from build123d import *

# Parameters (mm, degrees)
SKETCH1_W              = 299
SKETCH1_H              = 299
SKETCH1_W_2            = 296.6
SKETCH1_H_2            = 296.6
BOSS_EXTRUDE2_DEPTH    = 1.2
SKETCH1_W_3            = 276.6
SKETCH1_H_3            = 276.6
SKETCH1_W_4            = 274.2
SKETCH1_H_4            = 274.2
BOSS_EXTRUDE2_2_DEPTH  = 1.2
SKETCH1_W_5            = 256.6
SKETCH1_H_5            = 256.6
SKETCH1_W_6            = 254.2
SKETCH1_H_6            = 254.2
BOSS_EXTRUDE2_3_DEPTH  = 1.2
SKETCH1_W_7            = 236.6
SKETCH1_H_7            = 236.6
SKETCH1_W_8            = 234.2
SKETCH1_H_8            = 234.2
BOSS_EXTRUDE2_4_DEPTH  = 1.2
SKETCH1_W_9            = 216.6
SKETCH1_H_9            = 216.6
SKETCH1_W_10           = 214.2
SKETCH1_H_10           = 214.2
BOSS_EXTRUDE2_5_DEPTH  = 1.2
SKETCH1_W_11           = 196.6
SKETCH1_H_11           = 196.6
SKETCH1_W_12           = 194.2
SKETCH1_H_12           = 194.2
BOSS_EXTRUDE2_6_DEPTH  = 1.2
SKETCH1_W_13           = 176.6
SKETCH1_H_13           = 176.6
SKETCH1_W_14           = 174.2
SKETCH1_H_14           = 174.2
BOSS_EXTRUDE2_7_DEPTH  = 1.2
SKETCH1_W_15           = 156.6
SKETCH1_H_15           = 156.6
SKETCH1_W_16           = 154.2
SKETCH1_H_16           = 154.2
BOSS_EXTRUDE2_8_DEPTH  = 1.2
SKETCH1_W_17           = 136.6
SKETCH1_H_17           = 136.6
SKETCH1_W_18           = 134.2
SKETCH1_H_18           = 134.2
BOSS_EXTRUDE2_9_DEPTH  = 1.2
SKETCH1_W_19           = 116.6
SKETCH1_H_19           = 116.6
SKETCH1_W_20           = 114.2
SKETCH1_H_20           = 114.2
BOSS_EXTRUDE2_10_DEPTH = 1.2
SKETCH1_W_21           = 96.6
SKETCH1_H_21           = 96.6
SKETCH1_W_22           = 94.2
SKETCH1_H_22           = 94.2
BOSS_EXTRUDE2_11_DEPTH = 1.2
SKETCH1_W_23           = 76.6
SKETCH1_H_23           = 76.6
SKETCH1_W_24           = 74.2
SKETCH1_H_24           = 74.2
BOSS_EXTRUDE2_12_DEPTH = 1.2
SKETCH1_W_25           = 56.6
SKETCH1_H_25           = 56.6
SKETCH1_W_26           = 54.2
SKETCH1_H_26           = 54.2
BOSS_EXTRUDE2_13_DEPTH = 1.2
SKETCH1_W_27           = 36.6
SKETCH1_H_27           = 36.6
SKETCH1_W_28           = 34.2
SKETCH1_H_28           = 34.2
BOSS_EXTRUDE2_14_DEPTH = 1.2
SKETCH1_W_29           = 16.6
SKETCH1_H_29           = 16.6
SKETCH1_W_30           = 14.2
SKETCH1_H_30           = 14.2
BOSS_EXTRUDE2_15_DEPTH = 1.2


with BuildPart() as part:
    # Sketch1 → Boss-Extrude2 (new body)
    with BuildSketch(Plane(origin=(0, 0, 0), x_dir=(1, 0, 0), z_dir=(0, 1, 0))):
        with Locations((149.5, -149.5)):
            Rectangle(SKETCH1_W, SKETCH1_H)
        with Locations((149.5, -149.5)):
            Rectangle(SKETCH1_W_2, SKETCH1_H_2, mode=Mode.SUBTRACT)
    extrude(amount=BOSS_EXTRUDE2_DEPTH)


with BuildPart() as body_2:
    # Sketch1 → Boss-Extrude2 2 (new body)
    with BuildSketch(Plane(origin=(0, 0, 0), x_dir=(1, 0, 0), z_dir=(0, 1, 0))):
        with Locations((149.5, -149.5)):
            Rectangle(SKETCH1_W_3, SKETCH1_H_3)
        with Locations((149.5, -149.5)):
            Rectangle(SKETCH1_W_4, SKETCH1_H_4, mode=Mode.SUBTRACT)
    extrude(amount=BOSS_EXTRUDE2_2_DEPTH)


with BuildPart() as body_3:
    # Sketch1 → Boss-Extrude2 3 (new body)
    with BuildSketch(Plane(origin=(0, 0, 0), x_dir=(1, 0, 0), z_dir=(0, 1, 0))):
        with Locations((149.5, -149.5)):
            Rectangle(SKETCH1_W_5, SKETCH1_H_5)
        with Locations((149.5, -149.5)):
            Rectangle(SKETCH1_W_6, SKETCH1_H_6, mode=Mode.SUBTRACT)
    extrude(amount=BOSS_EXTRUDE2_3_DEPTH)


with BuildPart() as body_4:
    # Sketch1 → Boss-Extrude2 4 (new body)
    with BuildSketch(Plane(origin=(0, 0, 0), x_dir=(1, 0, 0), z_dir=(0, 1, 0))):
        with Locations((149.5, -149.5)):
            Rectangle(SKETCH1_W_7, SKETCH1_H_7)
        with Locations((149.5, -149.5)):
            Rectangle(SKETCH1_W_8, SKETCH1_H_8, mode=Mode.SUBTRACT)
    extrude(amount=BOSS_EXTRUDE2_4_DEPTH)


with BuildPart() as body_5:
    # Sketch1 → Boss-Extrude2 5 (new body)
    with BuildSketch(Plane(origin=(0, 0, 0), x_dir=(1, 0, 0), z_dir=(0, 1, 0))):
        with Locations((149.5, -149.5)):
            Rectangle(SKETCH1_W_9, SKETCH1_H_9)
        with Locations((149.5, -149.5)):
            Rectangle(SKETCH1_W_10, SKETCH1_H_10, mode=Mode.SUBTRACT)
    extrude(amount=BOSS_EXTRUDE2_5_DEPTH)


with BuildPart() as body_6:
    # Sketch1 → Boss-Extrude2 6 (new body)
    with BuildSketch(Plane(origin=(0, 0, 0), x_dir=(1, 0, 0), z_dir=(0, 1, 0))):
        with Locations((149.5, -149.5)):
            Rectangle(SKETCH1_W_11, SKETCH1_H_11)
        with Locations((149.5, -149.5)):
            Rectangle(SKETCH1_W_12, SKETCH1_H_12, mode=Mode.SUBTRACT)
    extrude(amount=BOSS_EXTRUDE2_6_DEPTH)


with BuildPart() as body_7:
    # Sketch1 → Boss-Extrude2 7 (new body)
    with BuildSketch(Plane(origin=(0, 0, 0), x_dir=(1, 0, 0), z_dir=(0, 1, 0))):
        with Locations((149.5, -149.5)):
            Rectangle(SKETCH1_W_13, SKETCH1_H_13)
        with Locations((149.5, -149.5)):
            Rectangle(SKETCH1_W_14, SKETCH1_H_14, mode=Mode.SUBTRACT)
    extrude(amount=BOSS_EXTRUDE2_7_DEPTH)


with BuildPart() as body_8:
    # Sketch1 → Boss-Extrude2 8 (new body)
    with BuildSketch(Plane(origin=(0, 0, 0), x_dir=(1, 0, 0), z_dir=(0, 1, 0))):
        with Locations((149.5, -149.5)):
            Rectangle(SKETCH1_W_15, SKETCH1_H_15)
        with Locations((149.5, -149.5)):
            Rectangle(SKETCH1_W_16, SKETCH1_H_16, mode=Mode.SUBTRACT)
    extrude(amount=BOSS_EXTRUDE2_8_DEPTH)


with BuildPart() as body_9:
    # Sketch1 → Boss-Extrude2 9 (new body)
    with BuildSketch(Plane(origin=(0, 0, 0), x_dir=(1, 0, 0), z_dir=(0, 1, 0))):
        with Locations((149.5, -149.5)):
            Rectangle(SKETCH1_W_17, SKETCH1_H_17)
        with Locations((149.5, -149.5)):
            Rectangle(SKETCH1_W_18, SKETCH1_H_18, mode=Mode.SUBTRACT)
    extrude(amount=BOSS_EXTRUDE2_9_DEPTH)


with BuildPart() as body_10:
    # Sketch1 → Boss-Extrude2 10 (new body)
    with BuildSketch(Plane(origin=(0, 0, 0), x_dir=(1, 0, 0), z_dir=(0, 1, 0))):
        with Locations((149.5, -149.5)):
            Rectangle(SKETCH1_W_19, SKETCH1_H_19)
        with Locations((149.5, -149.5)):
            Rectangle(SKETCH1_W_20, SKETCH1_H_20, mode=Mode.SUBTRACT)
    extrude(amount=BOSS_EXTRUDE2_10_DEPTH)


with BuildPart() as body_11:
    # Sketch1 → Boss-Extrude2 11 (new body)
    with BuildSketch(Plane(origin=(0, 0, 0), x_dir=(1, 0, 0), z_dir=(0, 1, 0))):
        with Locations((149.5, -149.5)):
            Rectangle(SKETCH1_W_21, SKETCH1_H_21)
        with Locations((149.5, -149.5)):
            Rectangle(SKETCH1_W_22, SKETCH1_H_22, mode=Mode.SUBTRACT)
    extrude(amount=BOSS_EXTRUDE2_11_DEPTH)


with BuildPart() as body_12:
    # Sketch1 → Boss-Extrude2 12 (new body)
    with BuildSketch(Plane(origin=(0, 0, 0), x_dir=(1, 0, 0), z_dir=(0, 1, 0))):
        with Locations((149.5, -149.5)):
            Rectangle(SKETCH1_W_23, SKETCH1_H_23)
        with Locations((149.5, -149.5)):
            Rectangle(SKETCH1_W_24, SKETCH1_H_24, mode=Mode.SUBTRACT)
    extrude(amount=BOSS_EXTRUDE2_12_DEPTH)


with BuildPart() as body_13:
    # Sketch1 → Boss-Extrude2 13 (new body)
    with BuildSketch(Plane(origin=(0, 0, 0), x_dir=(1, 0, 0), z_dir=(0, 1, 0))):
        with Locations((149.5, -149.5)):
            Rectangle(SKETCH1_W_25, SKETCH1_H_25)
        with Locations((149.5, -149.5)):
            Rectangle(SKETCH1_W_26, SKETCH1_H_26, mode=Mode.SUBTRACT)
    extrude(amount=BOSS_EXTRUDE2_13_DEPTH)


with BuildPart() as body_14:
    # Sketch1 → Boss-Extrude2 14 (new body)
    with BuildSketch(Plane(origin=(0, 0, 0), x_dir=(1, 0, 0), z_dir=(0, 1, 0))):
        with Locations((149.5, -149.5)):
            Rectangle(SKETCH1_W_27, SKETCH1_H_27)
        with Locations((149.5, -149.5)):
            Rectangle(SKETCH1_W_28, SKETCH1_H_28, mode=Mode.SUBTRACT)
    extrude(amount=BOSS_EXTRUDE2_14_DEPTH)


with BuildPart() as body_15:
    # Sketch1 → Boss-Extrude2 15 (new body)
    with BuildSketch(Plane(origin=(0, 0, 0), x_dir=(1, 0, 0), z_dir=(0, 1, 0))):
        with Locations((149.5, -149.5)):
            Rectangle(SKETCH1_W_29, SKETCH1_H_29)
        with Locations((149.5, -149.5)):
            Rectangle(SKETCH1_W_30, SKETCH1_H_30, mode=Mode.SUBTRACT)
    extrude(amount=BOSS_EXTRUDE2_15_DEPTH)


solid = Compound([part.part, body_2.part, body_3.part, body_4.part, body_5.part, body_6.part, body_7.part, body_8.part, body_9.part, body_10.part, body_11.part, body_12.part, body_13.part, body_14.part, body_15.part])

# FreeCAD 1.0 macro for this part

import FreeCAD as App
import Part
import Sketcher

doc = App.newDocument("Part")
body = doc.addObject("PartDesign::Body", "Body")

# Sketch on XZ plane
sketch1 = body.newObject("Sketcher::SketchObject", "Sketch")
sketch1.AttachmentSupport = (doc.getObject("XZ_Plane"), [""])
sketch1.MapMode = "FlatFace"
sketch1.addGeometry([
    Part.LineSegment(App.Vector(0, 0, 0), App.Vector(0, 299, 0)),  # 0
    Part.LineSegment(App.Vector(0, 299, 0), App.Vector(299, 299, 0)),  # 1
    Part.LineSegment(App.Vector(299, 299, 0), App.Vector(299, 0, 0)),  # 2
    Part.LineSegment(App.Vector(299, 0, 0), App.Vector(0, 0, 0)),  # 3
    Part.LineSegment(App.Vector(297.8, 297.8, 0), App.Vector(1.2, 297.8, 0)),  # 4
    Part.LineSegment(App.Vector(1.2, 297.8, 0), App.Vector(1.2, 1.2, 0)),  # 5
    Part.LineSegment(App.Vector(1.2, 1.2, 0), App.Vector(297.8, 1.2, 0)),  # 6
    Part.LineSegment(App.Vector(297.8, 1.2, 0), App.Vector(297.8, 297.8, 0)),  # 7
], False)
sketch1.addConstraint([
    Sketcher.Constraint("Coincident", 0, 2, 1, 1),
    Sketcher.Constraint("Coincident", 1, 2, 2, 1),
    Sketcher.Constraint("Coincident", 2, 2, 3, 1),
    Sketcher.Constraint("Coincident", 3, 2, 0, 1),
    Sketcher.Constraint("Coincident", 4, 2, 5, 1),
    Sketcher.Constraint("Coincident", 5, 2, 6, 1),
    Sketcher.Constraint("Coincident", 6, 2, 7, 1),
    Sketcher.Constraint("Coincident", 7, 2, 4, 1),
    Sketcher.Constraint("Vertical", 0),
    Sketcher.Constraint("Horizontal", 1),
    Sketcher.Constraint("Vertical", 2),
    Sketcher.Constraint("Horizontal", 3),
    Sketcher.Constraint("Horizontal", 4),
    Sketcher.Constraint("Vertical", 5),
    Sketcher.Constraint("Horizontal", 6),
    Sketcher.Constraint("Vertical", 7),
    Sketcher.Constraint("Coincident", 3, 2, -1, 1),
    Sketcher.Constraint("Equal", 3, 0),
    Sketcher.Constraint("Equal", 6, 5),
    Sketcher.Constraint("DistanceX", 1, 1, 1, 2, 299.0),
    Sketcher.Constraint("DistanceX", 4, 2, 4, 1, 296.6),
    Sketcher.Constraint("DistanceX", -1, 1, 4, 2, 1.2),
    Sketcher.Constraint("DistanceY", -1, 1, 4, 2, 297.8),
])
pad1 = body.newObject("PartDesign::Pad", "Pad")
pad1.Profile = sketch1
pad1.Length = 1.2
pad1.Reversed = True
body2 = doc.addObject("PartDesign::Body", "Body001")

# Sketch on XZ plane
sketch2 = body2.newObject("Sketcher::SketchObject", "Sketch001")
sketch2.AttachmentSupport = (doc.getObject("XZ_Plane001"), [""])
sketch2.MapMode = "FlatFace"
sketch2.addGeometry([
    Part.LineSegment(App.Vector(11.2, 11.2, 0), App.Vector(11.2, 287.8, 0)),  # 0
    Part.LineSegment(App.Vector(11.2, 287.8, 0), App.Vector(287.8, 287.8, 0)),  # 1
    Part.LineSegment(App.Vector(287.8, 287.8, 0), App.Vector(287.8, 11.2, 0)),  # 2
    Part.LineSegment(App.Vector(287.8, 11.2, 0), App.Vector(11.2, 11.2, 0)),  # 3
    Part.LineSegment(App.Vector(286.6, 286.6, 0), App.Vector(12.4, 286.6, 0)),  # 4
    Part.LineSegment(App.Vector(12.4, 286.6, 0), App.Vector(12.4, 12.4, 0)),  # 5
    Part.LineSegment(App.Vector(12.4, 12.4, 0), App.Vector(286.6, 12.4, 0)),  # 6
    Part.LineSegment(App.Vector(286.6, 12.4, 0), App.Vector(286.6, 286.6, 0)),  # 7
], False)
sketch2.addConstraint([
    Sketcher.Constraint("Coincident", 0, 2, 1, 1),
    Sketcher.Constraint("Coincident", 1, 2, 2, 1),
    Sketcher.Constraint("Coincident", 2, 2, 3, 1),
    Sketcher.Constraint("Coincident", 3, 2, 0, 1),
    Sketcher.Constraint("Coincident", 4, 2, 5, 1),
    Sketcher.Constraint("Coincident", 5, 2, 6, 1),
    Sketcher.Constraint("Coincident", 6, 2, 7, 1),
    Sketcher.Constraint("Coincident", 7, 2, 4, 1),
    Sketcher.Constraint("Vertical", 0),
    Sketcher.Constraint("Horizontal", 1),
    Sketcher.Constraint("Vertical", 2),
    Sketcher.Constraint("Horizontal", 3),
    Sketcher.Constraint("Horizontal", 4),
    Sketcher.Constraint("Vertical", 5),
    Sketcher.Constraint("Horizontal", 6),
    Sketcher.Constraint("Vertical", 7),
    Sketcher.Constraint("Equal", 3, 0),
    Sketcher.Constraint("Equal", 6, 5),
    Sketcher.Constraint("DistanceX", 1, 1, 1, 2, 276.6),
    Sketcher.Constraint("DistanceX", 4, 2, 4, 1, 274.2),
    Sketcher.Constraint("DistanceX", -1, 1, 0, 2, 11.2),
    Sketcher.Constraint("DistanceY", -1, 1, 0, 2, 287.8),
    Sketcher.Constraint("DistanceX", -1, 1, 4, 2, 12.4),
    Sketcher.Constraint("DistanceY", -1, 1, 4, 2, 286.6),
])
pad2 = body2.newObject("PartDesign::Pad", "Pad001")
pad2.Profile = sketch2
pad2.Length = 1.2
pad2.Reversed = True
body3 = doc.addObject("PartDesign::Body", "Body002")

# Sketch on XZ plane
sketch3 = body3.newObject("Sketcher::SketchObject", "Sketch002")
sketch3.AttachmentSupport = (doc.getObject("XZ_Plane002"), [""])
sketch3.MapMode = "FlatFace"
sketch3.addGeometry([
    Part.LineSegment(App.Vector(21.2, 21.2, 0), App.Vector(21.2, 277.8, 0)),  # 0
    Part.LineSegment(App.Vector(21.2, 277.8, 0), App.Vector(277.8, 277.8, 0)),  # 1
    Part.LineSegment(App.Vector(277.8, 277.8, 0), App.Vector(277.8, 21.2, 0)),  # 2
    Part.LineSegment(App.Vector(277.8, 21.2, 0), App.Vector(21.2, 21.2, 0)),  # 3
    Part.LineSegment(App.Vector(276.6, 276.6, 0), App.Vector(22.4, 276.6, 0)),  # 4
    Part.LineSegment(App.Vector(22.4, 276.6, 0), App.Vector(22.4, 22.4, 0)),  # 5
    Part.LineSegment(App.Vector(22.4, 22.4, 0), App.Vector(276.6, 22.4, 0)),  # 6
    Part.LineSegment(App.Vector(276.6, 22.4, 0), App.Vector(276.6, 276.6, 0)),  # 7
], False)
sketch3.addConstraint([
    Sketcher.Constraint("Coincident", 0, 2, 1, 1),
    Sketcher.Constraint("Coincident", 1, 2, 2, 1),
    Sketcher.Constraint("Coincident", 2, 2, 3, 1),
    Sketcher.Constraint("Coincident", 3, 2, 0, 1),
    Sketcher.Constraint("Coincident", 4, 2, 5, 1),
    Sketcher.Constraint("Coincident", 5, 2, 6, 1),
    Sketcher.Constraint("Coincident", 6, 2, 7, 1),
    Sketcher.Constraint("Coincident", 7, 2, 4, 1),
    Sketcher.Constraint("Vertical", 0),
    Sketcher.Constraint("Horizontal", 1),
    Sketcher.Constraint("Vertical", 2),
    Sketcher.Constraint("Horizontal", 3),
    Sketcher.Constraint("Horizontal", 4),
    Sketcher.Constraint("Vertical", 5),
    Sketcher.Constraint("Horizontal", 6),
    Sketcher.Constraint("Vertical", 7),
    Sketcher.Constraint("Equal", 3, 0),
    Sketcher.Constraint("Equal", 6, 5),
    Sketcher.Constraint("DistanceX", 1, 1, 1, 2, 256.6),
    Sketcher.Constraint("DistanceX", 4, 2, 4, 1, 254.2),
    Sketcher.Constraint("DistanceX", -1, 1, 0, 2, 21.2),
    Sketcher.Constraint("DistanceY", -1, 1, 0, 2, 277.8),
    Sketcher.Constraint("DistanceX", -1, 1, 4, 2, 22.4),
    Sketcher.Constraint("DistanceY", -1, 1, 4, 2, 276.6),
])
pad3 = body3.newObject("PartDesign::Pad", "Pad002")
pad3.Profile = sketch3
pad3.Length = 1.2
pad3.Reversed = True
body4 = doc.addObject("PartDesign::Body", "Body003")

# Sketch on XZ plane
sketch4 = body4.newObject("Sketcher::SketchObject", "Sketch003")
sketch4.AttachmentSupport = (doc.getObject("XZ_Plane003"), [""])
sketch4.MapMode = "FlatFace"
sketch4.addGeometry([
    Part.LineSegment(App.Vector(31.2, 31.2, 0), App.Vector(31.2, 267.8, 0)),  # 0
    Part.LineSegment(App.Vector(31.2, 267.8, 0), App.Vector(267.8, 267.8, 0)),  # 1
    Part.LineSegment(App.Vector(267.8, 267.8, 0), App.Vector(267.8, 31.2, 0)),  # 2
    Part.LineSegment(App.Vector(267.8, 31.2, 0), App.Vector(31.2, 31.2, 0)),  # 3
    Part.LineSegment(App.Vector(266.6, 266.6, 0), App.Vector(32.4, 266.6, 0)),  # 4
    Part.LineSegment(App.Vector(32.4, 266.6, 0), App.Vector(32.4, 32.4, 0)),  # 5
    Part.LineSegment(App.Vector(32.4, 32.4, 0), App.Vector(266.6, 32.4, 0)),  # 6
    Part.LineSegment(App.Vector(266.6, 32.4, 0), App.Vector(266.6, 266.6, 0)),  # 7
], False)
sketch4.addConstraint([
    Sketcher.Constraint("Coincident", 0, 2, 1, 1),
    Sketcher.Constraint("Coincident", 1, 2, 2, 1),
    Sketcher.Constraint("Coincident", 2, 2, 3, 1),
    Sketcher.Constraint("Coincident", 3, 2, 0, 1),
    Sketcher.Constraint("Coincident", 4, 2, 5, 1),
    Sketcher.Constraint("Coincident", 5, 2, 6, 1),
    Sketcher.Constraint("Coincident", 6, 2, 7, 1),
    Sketcher.Constraint("Coincident", 7, 2, 4, 1),
    Sketcher.Constraint("Vertical", 0),
    Sketcher.Constraint("Horizontal", 1),
    Sketcher.Constraint("Vertical", 2),
    Sketcher.Constraint("Horizontal", 3),
    Sketcher.Constraint("Horizontal", 4),
    Sketcher.Constraint("Vertical", 5),
    Sketcher.Constraint("Horizontal", 6),
    Sketcher.Constraint("Vertical", 7),
    Sketcher.Constraint("Equal", 3, 0),
    Sketcher.Constraint("Equal", 6, 5),
    Sketcher.Constraint("DistanceX", 1, 1, 1, 2, 236.6),
    Sketcher.Constraint("DistanceX", 4, 2, 4, 1, 234.2),
    Sketcher.Constraint("DistanceX", -1, 1, 0, 2, 31.2),
    Sketcher.Constraint("DistanceY", -1, 1, 0, 2, 267.8),
    Sketcher.Constraint("DistanceX", -1, 1, 4, 2, 32.4),
    Sketcher.Constraint("DistanceY", -1, 1, 4, 2, 266.6),
])
pad4 = body4.newObject("PartDesign::Pad", "Pad003")
pad4.Profile = sketch4
pad4.Length = 1.2
pad4.Reversed = True
body5 = doc.addObject("PartDesign::Body", "Body004")

# Sketch on XZ plane
sketch5 = body5.newObject("Sketcher::SketchObject", "Sketch004")
sketch5.AttachmentSupport = (doc.getObject("XZ_Plane004"), [""])
sketch5.MapMode = "FlatFace"
sketch5.addGeometry([
    Part.LineSegment(App.Vector(41.2, 41.2, 0), App.Vector(41.2, 257.8, 0)),  # 0
    Part.LineSegment(App.Vector(41.2, 257.8, 0), App.Vector(257.8, 257.8, 0)),  # 1
    Part.LineSegment(App.Vector(257.8, 257.8, 0), App.Vector(257.8, 41.2, 0)),  # 2
    Part.LineSegment(App.Vector(257.8, 41.2, 0), App.Vector(41.2, 41.2, 0)),  # 3
    Part.LineSegment(App.Vector(256.6, 256.6, 0), App.Vector(42.4, 256.6, 0)),  # 4
    Part.LineSegment(App.Vector(42.4, 256.6, 0), App.Vector(42.4, 42.4, 0)),  # 5
    Part.LineSegment(App.Vector(42.4, 42.4, 0), App.Vector(256.6, 42.4, 0)),  # 6
    Part.LineSegment(App.Vector(256.6, 42.4, 0), App.Vector(256.6, 256.6, 0)),  # 7
], False)
sketch5.addConstraint([
    Sketcher.Constraint("Coincident", 0, 2, 1, 1),
    Sketcher.Constraint("Coincident", 1, 2, 2, 1),
    Sketcher.Constraint("Coincident", 2, 2, 3, 1),
    Sketcher.Constraint("Coincident", 3, 2, 0, 1),
    Sketcher.Constraint("Coincident", 4, 2, 5, 1),
    Sketcher.Constraint("Coincident", 5, 2, 6, 1),
    Sketcher.Constraint("Coincident", 6, 2, 7, 1),
    Sketcher.Constraint("Coincident", 7, 2, 4, 1),
    Sketcher.Constraint("Vertical", 0),
    Sketcher.Constraint("Horizontal", 1),
    Sketcher.Constraint("Vertical", 2),
    Sketcher.Constraint("Horizontal", 3),
    Sketcher.Constraint("Horizontal", 4),
    Sketcher.Constraint("Vertical", 5),
    Sketcher.Constraint("Horizontal", 6),
    Sketcher.Constraint("Vertical", 7),
    Sketcher.Constraint("Equal", 3, 0),
    Sketcher.Constraint("Equal", 6, 5),
    Sketcher.Constraint("DistanceX", 1, 1, 1, 2, 216.6),
    Sketcher.Constraint("DistanceX", 4, 2, 4, 1, 214.2),
    Sketcher.Constraint("DistanceX", -1, 1, 0, 2, 41.2),
    Sketcher.Constraint("DistanceY", -1, 1, 0, 2, 257.8),
    Sketcher.Constraint("DistanceX", -1, 1, 4, 2, 42.4),
    Sketcher.Constraint("DistanceY", -1, 1, 4, 2, 256.6),
])
pad5 = body5.newObject("PartDesign::Pad", "Pad004")
pad5.Profile = sketch5
pad5.Length = 1.2
pad5.Reversed = True
body6 = doc.addObject("PartDesign::Body", "Body005")

# Sketch on XZ plane
sketch6 = body6.newObject("Sketcher::SketchObject", "Sketch005")
sketch6.AttachmentSupport = (doc.getObject("XZ_Plane005"), [""])
sketch6.MapMode = "FlatFace"
sketch6.addGeometry([
    Part.LineSegment(App.Vector(51.2, 51.2, 0), App.Vector(51.2, 247.8, 0)),  # 0
    Part.LineSegment(App.Vector(51.2, 247.8, 0), App.Vector(247.8, 247.8, 0)),  # 1
    Part.LineSegment(App.Vector(247.8, 247.8, 0), App.Vector(247.8, 51.2, 0)),  # 2
    Part.LineSegment(App.Vector(247.8, 51.2, 0), App.Vector(51.2, 51.2, 0)),  # 3
    Part.LineSegment(App.Vector(246.6, 246.6, 0), App.Vector(52.4, 246.6, 0)),  # 4
    Part.LineSegment(App.Vector(52.4, 246.6, 0), App.Vector(52.4, 52.4, 0)),  # 5
    Part.LineSegment(App.Vector(52.4, 52.4, 0), App.Vector(246.6, 52.4, 0)),  # 6
    Part.LineSegment(App.Vector(246.6, 52.4, 0), App.Vector(246.6, 246.6, 0)),  # 7
], False)
sketch6.addConstraint([
    Sketcher.Constraint("Coincident", 0, 2, 1, 1),
    Sketcher.Constraint("Coincident", 1, 2, 2, 1),
    Sketcher.Constraint("Coincident", 2, 2, 3, 1),
    Sketcher.Constraint("Coincident", 3, 2, 0, 1),
    Sketcher.Constraint("Coincident", 4, 2, 5, 1),
    Sketcher.Constraint("Coincident", 5, 2, 6, 1),
    Sketcher.Constraint("Coincident", 6, 2, 7, 1),
    Sketcher.Constraint("Coincident", 7, 2, 4, 1),
    Sketcher.Constraint("Vertical", 0),
    Sketcher.Constraint("Horizontal", 1),
    Sketcher.Constraint("Vertical", 2),
    Sketcher.Constraint("Horizontal", 3),
    Sketcher.Constraint("Horizontal", 4),
    Sketcher.Constraint("Vertical", 5),
    Sketcher.Constraint("Horizontal", 6),
    Sketcher.Constraint("Vertical", 7),
    Sketcher.Constraint("Equal", 3, 0),
    Sketcher.Constraint("Equal", 6, 5),
    Sketcher.Constraint("DistanceX", 1, 1, 1, 2, 196.6),
    Sketcher.Constraint("DistanceX", 4, 2, 4, 1, 194.2),
    Sketcher.Constraint("DistanceX", -1, 1, 0, 2, 51.2),
    Sketcher.Constraint("DistanceY", -1, 1, 0, 2, 247.8),
    Sketcher.Constraint("DistanceX", -1, 1, 4, 2, 52.4),
    Sketcher.Constraint("DistanceY", -1, 1, 4, 2, 246.6),
])
pad6 = body6.newObject("PartDesign::Pad", "Pad005")
pad6.Profile = sketch6
pad6.Length = 1.2
pad6.Reversed = True
body7 = doc.addObject("PartDesign::Body", "Body006")

# Sketch on XZ plane
sketch7 = body7.newObject("Sketcher::SketchObject", "Sketch006")
sketch7.AttachmentSupport = (doc.getObject("XZ_Plane006"), [""])
sketch7.MapMode = "FlatFace"
sketch7.addGeometry([
    Part.LineSegment(App.Vector(61.2, 61.2, 0), App.Vector(61.2, 237.8, 0)),  # 0
    Part.LineSegment(App.Vector(61.2, 237.8, 0), App.Vector(237.8, 237.8, 0)),  # 1
    Part.LineSegment(App.Vector(237.8, 237.8, 0), App.Vector(237.8, 61.2, 0)),  # 2
    Part.LineSegment(App.Vector(237.8, 61.2, 0), App.Vector(61.2, 61.2, 0)),  # 3
    Part.LineSegment(App.Vector(236.6, 236.6, 0), App.Vector(62.4, 236.6, 0)),  # 4
    Part.LineSegment(App.Vector(62.4, 236.6, 0), App.Vector(62.4, 62.4, 0)),  # 5
    Part.LineSegment(App.Vector(62.4, 62.4, 0), App.Vector(236.6, 62.4, 0)),  # 6
    Part.LineSegment(App.Vector(236.6, 62.4, 0), App.Vector(236.6, 236.6, 0)),  # 7
], False)
sketch7.addConstraint([
    Sketcher.Constraint("Coincident", 0, 2, 1, 1),
    Sketcher.Constraint("Coincident", 1, 2, 2, 1),
    Sketcher.Constraint("Coincident", 2, 2, 3, 1),
    Sketcher.Constraint("Coincident", 3, 2, 0, 1),
    Sketcher.Constraint("Coincident", 4, 2, 5, 1),
    Sketcher.Constraint("Coincident", 5, 2, 6, 1),
    Sketcher.Constraint("Coincident", 6, 2, 7, 1),
    Sketcher.Constraint("Coincident", 7, 2, 4, 1),
    Sketcher.Constraint("Vertical", 0),
    Sketcher.Constraint("Horizontal", 1),
    Sketcher.Constraint("Vertical", 2),
    Sketcher.Constraint("Horizontal", 3),
    Sketcher.Constraint("Horizontal", 4),
    Sketcher.Constraint("Vertical", 5),
    Sketcher.Constraint("Horizontal", 6),
    Sketcher.Constraint("Vertical", 7),
    Sketcher.Constraint("Equal", 3, 0),
    Sketcher.Constraint("Equal", 6, 5),
    Sketcher.Constraint("DistanceX", 1, 1, 1, 2, 176.6),
    Sketcher.Constraint("DistanceX", 4, 2, 4, 1, 174.2),
    Sketcher.Constraint("DistanceX", -1, 1, 0, 2, 61.2),
    Sketcher.Constraint("DistanceY", -1, 1, 0, 2, 237.8),
    Sketcher.Constraint("DistanceX", -1, 1, 4, 2, 62.4),
    Sketcher.Constraint("DistanceY", -1, 1, 4, 2, 236.6),
])
pad7 = body7.newObject("PartDesign::Pad", "Pad006")
pad7.Profile = sketch7
pad7.Length = 1.2
pad7.Reversed = True
body8 = doc.addObject("PartDesign::Body", "Body007")

# Sketch on XZ plane
sketch8 = body8.newObject("Sketcher::SketchObject", "Sketch007")
sketch8.AttachmentSupport = (doc.getObject("XZ_Plane007"), [""])
sketch8.MapMode = "FlatFace"
sketch8.addGeometry([
    Part.LineSegment(App.Vector(71.2, 71.2, 0), App.Vector(71.2, 227.8, 0)),  # 0
    Part.LineSegment(App.Vector(71.2, 227.8, 0), App.Vector(227.8, 227.8, 0)),  # 1
    Part.LineSegment(App.Vector(227.8, 227.8, 0), App.Vector(227.8, 71.2, 0)),  # 2
    Part.LineSegment(App.Vector(227.8, 71.2, 0), App.Vector(71.2, 71.2, 0)),  # 3
    Part.LineSegment(App.Vector(226.6, 226.6, 0), App.Vector(72.4, 226.6, 0)),  # 4
    Part.LineSegment(App.Vector(72.4, 226.6, 0), App.Vector(72.4, 72.4, 0)),  # 5
    Part.LineSegment(App.Vector(72.4, 72.4, 0), App.Vector(226.6, 72.4, 0)),  # 6
    Part.LineSegment(App.Vector(226.6, 72.4, 0), App.Vector(226.6, 226.6, 0)),  # 7
], False)
sketch8.addConstraint([
    Sketcher.Constraint("Coincident", 0, 2, 1, 1),
    Sketcher.Constraint("Coincident", 1, 2, 2, 1),
    Sketcher.Constraint("Coincident", 2, 2, 3, 1),
    Sketcher.Constraint("Coincident", 3, 2, 0, 1),
    Sketcher.Constraint("Coincident", 4, 2, 5, 1),
    Sketcher.Constraint("Coincident", 5, 2, 6, 1),
    Sketcher.Constraint("Coincident", 6, 2, 7, 1),
    Sketcher.Constraint("Coincident", 7, 2, 4, 1),
    Sketcher.Constraint("Vertical", 0),
    Sketcher.Constraint("Horizontal", 1),
    Sketcher.Constraint("Vertical", 2),
    Sketcher.Constraint("Horizontal", 3),
    Sketcher.Constraint("Horizontal", 4),
    Sketcher.Constraint("Vertical", 5),
    Sketcher.Constraint("Horizontal", 6),
    Sketcher.Constraint("Vertical", 7),
    Sketcher.Constraint("Equal", 3, 0),
    Sketcher.Constraint("Equal", 6, 5),
    Sketcher.Constraint("DistanceX", 1, 1, 1, 2, 156.6),
    Sketcher.Constraint("DistanceX", 4, 2, 4, 1, 154.2),
    Sketcher.Constraint("DistanceX", -1, 1, 0, 2, 71.2),
    Sketcher.Constraint("DistanceY", -1, 1, 0, 2, 227.8),
    Sketcher.Constraint("DistanceX", -1, 1, 4, 2, 72.4),
    Sketcher.Constraint("DistanceY", -1, 1, 4, 2, 226.6),
])
pad8 = body8.newObject("PartDesign::Pad", "Pad007")
pad8.Profile = sketch8
pad8.Length = 1.2
pad8.Reversed = True
body9 = doc.addObject("PartDesign::Body", "Body008")

# Sketch on XZ plane
sketch9 = body9.newObject("Sketcher::SketchObject", "Sketch008")
sketch9.AttachmentSupport = (doc.getObject("XZ_Plane008"), [""])
sketch9.MapMode = "FlatFace"
sketch9.addGeometry([
    Part.LineSegment(App.Vector(81.2, 81.2, 0), App.Vector(81.2, 217.8, 0)),  # 0
    Part.LineSegment(App.Vector(81.2, 217.8, 0), App.Vector(217.8, 217.8, 0)),  # 1
    Part.LineSegment(App.Vector(217.8, 217.8, 0), App.Vector(217.8, 81.2, 0)),  # 2
    Part.LineSegment(App.Vector(217.8, 81.2, 0), App.Vector(81.2, 81.2, 0)),  # 3
    Part.LineSegment(App.Vector(216.6, 216.6, 0), App.Vector(82.4, 216.6, 0)),  # 4
    Part.LineSegment(App.Vector(82.4, 216.6, 0), App.Vector(82.4, 82.4, 0)),  # 5
    Part.LineSegment(App.Vector(82.4, 82.4, 0), App.Vector(216.6, 82.4, 0)),  # 6
    Part.LineSegment(App.Vector(216.6, 82.4, 0), App.Vector(216.6, 216.6, 0)),  # 7
], False)
sketch9.addConstraint([
    Sketcher.Constraint("Coincident", 0, 2, 1, 1),
    Sketcher.Constraint("Coincident", 1, 2, 2, 1),
    Sketcher.Constraint("Coincident", 2, 2, 3, 1),
    Sketcher.Constraint("Coincident", 3, 2, 0, 1),
    Sketcher.Constraint("Coincident", 4, 2, 5, 1),
    Sketcher.Constraint("Coincident", 5, 2, 6, 1),
    Sketcher.Constraint("Coincident", 6, 2, 7, 1),
    Sketcher.Constraint("Coincident", 7, 2, 4, 1),
    Sketcher.Constraint("Vertical", 0),
    Sketcher.Constraint("Horizontal", 1),
    Sketcher.Constraint("Vertical", 2),
    Sketcher.Constraint("Horizontal", 3),
    Sketcher.Constraint("Horizontal", 4),
    Sketcher.Constraint("Vertical", 5),
    Sketcher.Constraint("Horizontal", 6),
    Sketcher.Constraint("Vertical", 7),
    Sketcher.Constraint("Equal", 3, 0),
    Sketcher.Constraint("Equal", 6, 5),
    Sketcher.Constraint("DistanceX", 1, 1, 1, 2, 136.6),
    Sketcher.Constraint("DistanceX", 4, 2, 4, 1, 134.2),
    Sketcher.Constraint("DistanceX", -1, 1, 0, 2, 81.2),
    Sketcher.Constraint("DistanceY", -1, 1, 0, 2, 217.8),
    Sketcher.Constraint("DistanceX", -1, 1, 4, 2, 82.4),
    Sketcher.Constraint("DistanceY", -1, 1, 4, 2, 216.6),
])
pad9 = body9.newObject("PartDesign::Pad", "Pad008")
pad9.Profile = sketch9
pad9.Length = 1.2
pad9.Reversed = True
body10 = doc.addObject("PartDesign::Body", "Body009")

# Sketch on XZ plane
sketch10 = body10.newObject("Sketcher::SketchObject", "Sketch009")
sketch10.AttachmentSupport = (doc.getObject("XZ_Plane009"), [""])
sketch10.MapMode = "FlatFace"
sketch10.addGeometry([
    Part.LineSegment(App.Vector(91.2, 91.2, 0), App.Vector(91.2, 207.8, 0)),  # 0
    Part.LineSegment(App.Vector(91.2, 207.8, 0), App.Vector(207.8, 207.8, 0)),  # 1
    Part.LineSegment(App.Vector(207.8, 207.8, 0), App.Vector(207.8, 91.2, 0)),  # 2
    Part.LineSegment(App.Vector(207.8, 91.2, 0), App.Vector(91.2, 91.2, 0)),  # 3
    Part.LineSegment(App.Vector(206.6, 206.6, 0), App.Vector(92.4, 206.6, 0)),  # 4
    Part.LineSegment(App.Vector(92.4, 206.6, 0), App.Vector(92.4, 92.4, 0)),  # 5
    Part.LineSegment(App.Vector(92.4, 92.4, 0), App.Vector(206.6, 92.4, 0)),  # 6
    Part.LineSegment(App.Vector(206.6, 92.4, 0), App.Vector(206.6, 206.6, 0)),  # 7
], False)
sketch10.addConstraint([
    Sketcher.Constraint("Coincident", 0, 2, 1, 1),
    Sketcher.Constraint("Coincident", 1, 2, 2, 1),
    Sketcher.Constraint("Coincident", 2, 2, 3, 1),
    Sketcher.Constraint("Coincident", 3, 2, 0, 1),
    Sketcher.Constraint("Coincident", 4, 2, 5, 1),
    Sketcher.Constraint("Coincident", 5, 2, 6, 1),
    Sketcher.Constraint("Coincident", 6, 2, 7, 1),
    Sketcher.Constraint("Coincident", 7, 2, 4, 1),
    Sketcher.Constraint("Vertical", 0),
    Sketcher.Constraint("Horizontal", 1),
    Sketcher.Constraint("Vertical", 2),
    Sketcher.Constraint("Horizontal", 3),
    Sketcher.Constraint("Horizontal", 4),
    Sketcher.Constraint("Vertical", 5),
    Sketcher.Constraint("Horizontal", 6),
    Sketcher.Constraint("Vertical", 7),
    Sketcher.Constraint("Equal", 3, 0),
    Sketcher.Constraint("Equal", 6, 5),
    Sketcher.Constraint("DistanceX", 1, 1, 1, 2, 116.6),
    Sketcher.Constraint("DistanceX", 4, 2, 4, 1, 114.2),
    Sketcher.Constraint("DistanceX", -1, 1, 0, 2, 91.2),
    Sketcher.Constraint("DistanceY", -1, 1, 0, 2, 207.8),
    Sketcher.Constraint("DistanceX", -1, 1, 4, 2, 92.4),
    Sketcher.Constraint("DistanceY", -1, 1, 4, 2, 206.6),
])
pad10 = body10.newObject("PartDesign::Pad", "Pad009")
pad10.Profile = sketch10
pad10.Length = 1.2
pad10.Reversed = True
body11 = doc.addObject("PartDesign::Body", "Body010")

# Sketch on XZ plane
sketch11 = body11.newObject("Sketcher::SketchObject", "Sketch010")
sketch11.AttachmentSupport = (doc.getObject("XZ_Plane010"), [""])
sketch11.MapMode = "FlatFace"
sketch11.addGeometry([
    Part.LineSegment(App.Vector(101.2, 101.2, 0), App.Vector(101.2, 197.8, 0)),  # 0
    Part.LineSegment(App.Vector(101.2, 197.8, 0), App.Vector(197.8, 197.8, 0)),  # 1
    Part.LineSegment(App.Vector(197.8, 197.8, 0), App.Vector(197.8, 101.2, 0)),  # 2
    Part.LineSegment(App.Vector(197.8, 101.2, 0), App.Vector(101.2, 101.2, 0)),  # 3
    Part.LineSegment(App.Vector(196.6, 196.6, 0), App.Vector(102.4, 196.6, 0)),  # 4
    Part.LineSegment(App.Vector(102.4, 196.6, 0), App.Vector(102.4, 102.4, 0)),  # 5
    Part.LineSegment(App.Vector(102.4, 102.4, 0), App.Vector(196.6, 102.4, 0)),  # 6
    Part.LineSegment(App.Vector(196.6, 102.4, 0), App.Vector(196.6, 196.6, 0)),  # 7
], False)
sketch11.addConstraint([
    Sketcher.Constraint("Coincident", 0, 2, 1, 1),
    Sketcher.Constraint("Coincident", 1, 2, 2, 1),
    Sketcher.Constraint("Coincident", 2, 2, 3, 1),
    Sketcher.Constraint("Coincident", 3, 2, 0, 1),
    Sketcher.Constraint("Coincident", 4, 2, 5, 1),
    Sketcher.Constraint("Coincident", 5, 2, 6, 1),
    Sketcher.Constraint("Coincident", 6, 2, 7, 1),
    Sketcher.Constraint("Coincident", 7, 2, 4, 1),
    Sketcher.Constraint("Vertical", 0),
    Sketcher.Constraint("Horizontal", 1),
    Sketcher.Constraint("Vertical", 2),
    Sketcher.Constraint("Horizontal", 3),
    Sketcher.Constraint("Horizontal", 4),
    Sketcher.Constraint("Vertical", 5),
    Sketcher.Constraint("Horizontal", 6),
    Sketcher.Constraint("Vertical", 7),
    Sketcher.Constraint("Equal", 3, 0),
    Sketcher.Constraint("Equal", 6, 5),
    Sketcher.Constraint("DistanceX", 1, 1, 1, 2, 96.6),
    Sketcher.Constraint("DistanceX", 4, 2, 4, 1, 94.2),
    Sketcher.Constraint("DistanceX", -1, 1, 0, 2, 101.2),
    Sketcher.Constraint("DistanceY", -1, 1, 0, 2, 197.8),
    Sketcher.Constraint("DistanceX", -1, 1, 4, 2, 102.4),
    Sketcher.Constraint("DistanceY", -1, 1, 4, 2, 196.6),
])
pad11 = body11.newObject("PartDesign::Pad", "Pad010")
pad11.Profile = sketch11
pad11.Length = 1.2
pad11.Reversed = True
body12 = doc.addObject("PartDesign::Body", "Body011")

# Sketch on XZ plane
sketch12 = body12.newObject("Sketcher::SketchObject", "Sketch011")
sketch12.AttachmentSupport = (doc.getObject("XZ_Plane011"), [""])
sketch12.MapMode = "FlatFace"
sketch12.addGeometry([
    Part.LineSegment(App.Vector(111.2, 111.2, 0), App.Vector(111.2, 187.8, 0)),  # 0
    Part.LineSegment(App.Vector(111.2, 187.8, 0), App.Vector(187.8, 187.8, 0)),  # 1
    Part.LineSegment(App.Vector(187.8, 187.8, 0), App.Vector(187.8, 111.2, 0)),  # 2
    Part.LineSegment(App.Vector(187.8, 111.2, 0), App.Vector(111.2, 111.2, 0)),  # 3
    Part.LineSegment(App.Vector(186.6, 186.6, 0), App.Vector(112.4, 186.6, 0)),  # 4
    Part.LineSegment(App.Vector(112.4, 186.6, 0), App.Vector(112.4, 112.4, 0)),  # 5
    Part.LineSegment(App.Vector(112.4, 112.4, 0), App.Vector(186.6, 112.4, 0)),  # 6
    Part.LineSegment(App.Vector(186.6, 112.4, 0), App.Vector(186.6, 186.6, 0)),  # 7
], False)
sketch12.addConstraint([
    Sketcher.Constraint("Coincident", 0, 2, 1, 1),
    Sketcher.Constraint("Coincident", 1, 2, 2, 1),
    Sketcher.Constraint("Coincident", 2, 2, 3, 1),
    Sketcher.Constraint("Coincident", 3, 2, 0, 1),
    Sketcher.Constraint("Coincident", 4, 2, 5, 1),
    Sketcher.Constraint("Coincident", 5, 2, 6, 1),
    Sketcher.Constraint("Coincident", 6, 2, 7, 1),
    Sketcher.Constraint("Coincident", 7, 2, 4, 1),
    Sketcher.Constraint("Vertical", 0),
    Sketcher.Constraint("Horizontal", 1),
    Sketcher.Constraint("Vertical", 2),
    Sketcher.Constraint("Horizontal", 3),
    Sketcher.Constraint("Horizontal", 4),
    Sketcher.Constraint("Vertical", 5),
    Sketcher.Constraint("Horizontal", 6),
    Sketcher.Constraint("Vertical", 7),
    Sketcher.Constraint("Equal", 3, 0),
    Sketcher.Constraint("Equal", 6, 5),
    Sketcher.Constraint("DistanceX", 1, 1, 1, 2, 76.6),
    Sketcher.Constraint("DistanceX", 4, 2, 4, 1, 74.2),
    Sketcher.Constraint("DistanceX", -1, 1, 0, 2, 111.2),
    Sketcher.Constraint("DistanceY", -1, 1, 0, 2, 187.8),
    Sketcher.Constraint("DistanceX", -1, 1, 4, 2, 112.4),
    Sketcher.Constraint("DistanceY", -1, 1, 4, 2, 186.6),
])
pad12 = body12.newObject("PartDesign::Pad", "Pad011")
pad12.Profile = sketch12
pad12.Length = 1.2
pad12.Reversed = True
body13 = doc.addObject("PartDesign::Body", "Body012")

# Sketch on XZ plane
sketch13 = body13.newObject("Sketcher::SketchObject", "Sketch012")
sketch13.AttachmentSupport = (doc.getObject("XZ_Plane012"), [""])
sketch13.MapMode = "FlatFace"
sketch13.addGeometry([
    Part.LineSegment(App.Vector(121.2, 121.2, 0), App.Vector(121.2, 177.8, 0)),  # 0
    Part.LineSegment(App.Vector(121.2, 177.8, 0), App.Vector(177.8, 177.8, 0)),  # 1
    Part.LineSegment(App.Vector(177.8, 177.8, 0), App.Vector(177.8, 121.2, 0)),  # 2
    Part.LineSegment(App.Vector(177.8, 121.2, 0), App.Vector(121.2, 121.2, 0)),  # 3
    Part.LineSegment(App.Vector(176.6, 176.6, 0), App.Vector(122.4, 176.6, 0)),  # 4
    Part.LineSegment(App.Vector(122.4, 176.6, 0), App.Vector(122.4, 122.4, 0)),  # 5
    Part.LineSegment(App.Vector(122.4, 122.4, 0), App.Vector(176.6, 122.4, 0)),  # 6
    Part.LineSegment(App.Vector(176.6, 122.4, 0), App.Vector(176.6, 176.6, 0)),  # 7
], False)
sketch13.addConstraint([
    Sketcher.Constraint("Coincident", 0, 2, 1, 1),
    Sketcher.Constraint("Coincident", 1, 2, 2, 1),
    Sketcher.Constraint("Coincident", 2, 2, 3, 1),
    Sketcher.Constraint("Coincident", 3, 2, 0, 1),
    Sketcher.Constraint("Coincident", 4, 2, 5, 1),
    Sketcher.Constraint("Coincident", 5, 2, 6, 1),
    Sketcher.Constraint("Coincident", 6, 2, 7, 1),
    Sketcher.Constraint("Coincident", 7, 2, 4, 1),
    Sketcher.Constraint("Vertical", 0),
    Sketcher.Constraint("Horizontal", 1),
    Sketcher.Constraint("Vertical", 2),
    Sketcher.Constraint("Horizontal", 3),
    Sketcher.Constraint("Horizontal", 4),
    Sketcher.Constraint("Vertical", 5),
    Sketcher.Constraint("Horizontal", 6),
    Sketcher.Constraint("Vertical", 7),
    Sketcher.Constraint("Equal", 3, 0),
    Sketcher.Constraint("Equal", 6, 5),
    Sketcher.Constraint("DistanceX", 1, 1, 1, 2, 56.6),
    Sketcher.Constraint("DistanceX", 4, 2, 4, 1, 54.2),
    Sketcher.Constraint("DistanceX", -1, 1, 0, 2, 121.2),
    Sketcher.Constraint("DistanceY", -1, 1, 0, 2, 177.8),
    Sketcher.Constraint("DistanceX", -1, 1, 4, 2, 122.4),
    Sketcher.Constraint("DistanceY", -1, 1, 4, 2, 176.6),
])
pad13 = body13.newObject("PartDesign::Pad", "Pad012")
pad13.Profile = sketch13
pad13.Length = 1.2
pad13.Reversed = True
body14 = doc.addObject("PartDesign::Body", "Body013")

# Sketch on XZ plane
sketch14 = body14.newObject("Sketcher::SketchObject", "Sketch013")
sketch14.AttachmentSupport = (doc.getObject("XZ_Plane013"), [""])
sketch14.MapMode = "FlatFace"
sketch14.addGeometry([
    Part.LineSegment(App.Vector(131.2, 131.2, 0), App.Vector(131.2, 167.8, 0)),  # 0
    Part.LineSegment(App.Vector(131.2, 167.8, 0), App.Vector(167.8, 167.8, 0)),  # 1
    Part.LineSegment(App.Vector(167.8, 167.8, 0), App.Vector(167.8, 131.2, 0)),  # 2
    Part.LineSegment(App.Vector(167.8, 131.2, 0), App.Vector(131.2, 131.2, 0)),  # 3
    Part.LineSegment(App.Vector(166.6, 166.6, 0), App.Vector(132.4, 166.6, 0)),  # 4
    Part.LineSegment(App.Vector(132.4, 166.6, 0), App.Vector(132.4, 132.4, 0)),  # 5
    Part.LineSegment(App.Vector(132.4, 132.4, 0), App.Vector(166.6, 132.4, 0)),  # 6
    Part.LineSegment(App.Vector(166.6, 132.4, 0), App.Vector(166.6, 166.6, 0)),  # 7
], False)
sketch14.addConstraint([
    Sketcher.Constraint("Coincident", 0, 2, 1, 1),
    Sketcher.Constraint("Coincident", 1, 2, 2, 1),
    Sketcher.Constraint("Coincident", 2, 2, 3, 1),
    Sketcher.Constraint("Coincident", 3, 2, 0, 1),
    Sketcher.Constraint("Coincident", 4, 2, 5, 1),
    Sketcher.Constraint("Coincident", 5, 2, 6, 1),
    Sketcher.Constraint("Coincident", 6, 2, 7, 1),
    Sketcher.Constraint("Coincident", 7, 2, 4, 1),
    Sketcher.Constraint("Vertical", 0),
    Sketcher.Constraint("Horizontal", 1),
    Sketcher.Constraint("Vertical", 2),
    Sketcher.Constraint("Horizontal", 3),
    Sketcher.Constraint("Horizontal", 4),
    Sketcher.Constraint("Vertical", 5),
    Sketcher.Constraint("Horizontal", 6),
    Sketcher.Constraint("Vertical", 7),
    Sketcher.Constraint("Equal", 3, 0),
    Sketcher.Constraint("Equal", 6, 5),
    Sketcher.Constraint("DistanceX", 1, 1, 1, 2, 36.6),
    Sketcher.Constraint("DistanceX", 4, 2, 4, 1, 34.2),
    Sketcher.Constraint("DistanceX", -1, 1, 0, 2, 131.2),
    Sketcher.Constraint("DistanceY", -1, 1, 0, 2, 167.8),
    Sketcher.Constraint("DistanceX", -1, 1, 4, 2, 132.4),
    Sketcher.Constraint("DistanceY", -1, 1, 4, 2, 166.6),
])
pad14 = body14.newObject("PartDesign::Pad", "Pad013")
pad14.Profile = sketch14
pad14.Length = 1.2
pad14.Reversed = True
body15 = doc.addObject("PartDesign::Body", "Body014")

# Sketch on XZ plane
sketch15 = body15.newObject("Sketcher::SketchObject", "Sketch014")
sketch15.AttachmentSupport = (doc.getObject("XZ_Plane014"), [""])
sketch15.MapMode = "FlatFace"
sketch15.addGeometry([
    Part.LineSegment(App.Vector(141.2, 141.2, 0), App.Vector(141.2, 157.8, 0)),  # 0
    Part.LineSegment(App.Vector(141.2, 157.8, 0), App.Vector(157.8, 157.8, 0)),  # 1
    Part.LineSegment(App.Vector(157.8, 157.8, 0), App.Vector(157.8, 141.2, 0)),  # 2
    Part.LineSegment(App.Vector(157.8, 141.2, 0), App.Vector(141.2, 141.2, 0)),  # 3
    Part.LineSegment(App.Vector(156.6, 156.6, 0), App.Vector(142.4, 156.6, 0)),  # 4
    Part.LineSegment(App.Vector(142.4, 156.6, 0), App.Vector(142.4, 142.4, 0)),  # 5
    Part.LineSegment(App.Vector(142.4, 142.4, 0), App.Vector(156.6, 142.4, 0)),  # 6
    Part.LineSegment(App.Vector(156.6, 142.4, 0), App.Vector(156.6, 156.6, 0)),  # 7
], False)
sketch15.addConstraint([
    Sketcher.Constraint("Coincident", 0, 2, 1, 1),
    Sketcher.Constraint("Coincident", 1, 2, 2, 1),
    Sketcher.Constraint("Coincident", 2, 2, 3, 1),
    Sketcher.Constraint("Coincident", 3, 2, 0, 1),
    Sketcher.Constraint("Coincident", 4, 2, 5, 1),
    Sketcher.Constraint("Coincident", 5, 2, 6, 1),
    Sketcher.Constraint("Coincident", 6, 2, 7, 1),
    Sketcher.Constraint("Coincident", 7, 2, 4, 1),
    Sketcher.Constraint("Vertical", 0),
    Sketcher.Constraint("Horizontal", 1),
    Sketcher.Constraint("Vertical", 2),
    Sketcher.Constraint("Horizontal", 3),
    Sketcher.Constraint("Horizontal", 4),
    Sketcher.Constraint("Vertical", 5),
    Sketcher.Constraint("Horizontal", 6),
    Sketcher.Constraint("Vertical", 7),
    Sketcher.Constraint("Equal", 3, 0),
    Sketcher.Constraint("Equal", 6, 5),
    Sketcher.Constraint("DistanceX", 1, 1, 1, 2, 16.6),
    Sketcher.Constraint("DistanceX", 4, 2, 4, 1, 14.2),
    Sketcher.Constraint("DistanceX", -1, 1, 0, 2, 141.2),
    Sketcher.Constraint("DistanceY", -1, 1, 0, 2, 157.8),
    Sketcher.Constraint("DistanceX", -1, 1, 4, 2, 142.4),
    Sketcher.Constraint("DistanceY", -1, 1, 4, 2, 156.6),
])
pad15 = body15.newObject("PartDesign::Pad", "Pad014")
pad15.Profile = sketch15
pad15.Length = 1.2
pad15.Reversed = True

doc.recompute()
